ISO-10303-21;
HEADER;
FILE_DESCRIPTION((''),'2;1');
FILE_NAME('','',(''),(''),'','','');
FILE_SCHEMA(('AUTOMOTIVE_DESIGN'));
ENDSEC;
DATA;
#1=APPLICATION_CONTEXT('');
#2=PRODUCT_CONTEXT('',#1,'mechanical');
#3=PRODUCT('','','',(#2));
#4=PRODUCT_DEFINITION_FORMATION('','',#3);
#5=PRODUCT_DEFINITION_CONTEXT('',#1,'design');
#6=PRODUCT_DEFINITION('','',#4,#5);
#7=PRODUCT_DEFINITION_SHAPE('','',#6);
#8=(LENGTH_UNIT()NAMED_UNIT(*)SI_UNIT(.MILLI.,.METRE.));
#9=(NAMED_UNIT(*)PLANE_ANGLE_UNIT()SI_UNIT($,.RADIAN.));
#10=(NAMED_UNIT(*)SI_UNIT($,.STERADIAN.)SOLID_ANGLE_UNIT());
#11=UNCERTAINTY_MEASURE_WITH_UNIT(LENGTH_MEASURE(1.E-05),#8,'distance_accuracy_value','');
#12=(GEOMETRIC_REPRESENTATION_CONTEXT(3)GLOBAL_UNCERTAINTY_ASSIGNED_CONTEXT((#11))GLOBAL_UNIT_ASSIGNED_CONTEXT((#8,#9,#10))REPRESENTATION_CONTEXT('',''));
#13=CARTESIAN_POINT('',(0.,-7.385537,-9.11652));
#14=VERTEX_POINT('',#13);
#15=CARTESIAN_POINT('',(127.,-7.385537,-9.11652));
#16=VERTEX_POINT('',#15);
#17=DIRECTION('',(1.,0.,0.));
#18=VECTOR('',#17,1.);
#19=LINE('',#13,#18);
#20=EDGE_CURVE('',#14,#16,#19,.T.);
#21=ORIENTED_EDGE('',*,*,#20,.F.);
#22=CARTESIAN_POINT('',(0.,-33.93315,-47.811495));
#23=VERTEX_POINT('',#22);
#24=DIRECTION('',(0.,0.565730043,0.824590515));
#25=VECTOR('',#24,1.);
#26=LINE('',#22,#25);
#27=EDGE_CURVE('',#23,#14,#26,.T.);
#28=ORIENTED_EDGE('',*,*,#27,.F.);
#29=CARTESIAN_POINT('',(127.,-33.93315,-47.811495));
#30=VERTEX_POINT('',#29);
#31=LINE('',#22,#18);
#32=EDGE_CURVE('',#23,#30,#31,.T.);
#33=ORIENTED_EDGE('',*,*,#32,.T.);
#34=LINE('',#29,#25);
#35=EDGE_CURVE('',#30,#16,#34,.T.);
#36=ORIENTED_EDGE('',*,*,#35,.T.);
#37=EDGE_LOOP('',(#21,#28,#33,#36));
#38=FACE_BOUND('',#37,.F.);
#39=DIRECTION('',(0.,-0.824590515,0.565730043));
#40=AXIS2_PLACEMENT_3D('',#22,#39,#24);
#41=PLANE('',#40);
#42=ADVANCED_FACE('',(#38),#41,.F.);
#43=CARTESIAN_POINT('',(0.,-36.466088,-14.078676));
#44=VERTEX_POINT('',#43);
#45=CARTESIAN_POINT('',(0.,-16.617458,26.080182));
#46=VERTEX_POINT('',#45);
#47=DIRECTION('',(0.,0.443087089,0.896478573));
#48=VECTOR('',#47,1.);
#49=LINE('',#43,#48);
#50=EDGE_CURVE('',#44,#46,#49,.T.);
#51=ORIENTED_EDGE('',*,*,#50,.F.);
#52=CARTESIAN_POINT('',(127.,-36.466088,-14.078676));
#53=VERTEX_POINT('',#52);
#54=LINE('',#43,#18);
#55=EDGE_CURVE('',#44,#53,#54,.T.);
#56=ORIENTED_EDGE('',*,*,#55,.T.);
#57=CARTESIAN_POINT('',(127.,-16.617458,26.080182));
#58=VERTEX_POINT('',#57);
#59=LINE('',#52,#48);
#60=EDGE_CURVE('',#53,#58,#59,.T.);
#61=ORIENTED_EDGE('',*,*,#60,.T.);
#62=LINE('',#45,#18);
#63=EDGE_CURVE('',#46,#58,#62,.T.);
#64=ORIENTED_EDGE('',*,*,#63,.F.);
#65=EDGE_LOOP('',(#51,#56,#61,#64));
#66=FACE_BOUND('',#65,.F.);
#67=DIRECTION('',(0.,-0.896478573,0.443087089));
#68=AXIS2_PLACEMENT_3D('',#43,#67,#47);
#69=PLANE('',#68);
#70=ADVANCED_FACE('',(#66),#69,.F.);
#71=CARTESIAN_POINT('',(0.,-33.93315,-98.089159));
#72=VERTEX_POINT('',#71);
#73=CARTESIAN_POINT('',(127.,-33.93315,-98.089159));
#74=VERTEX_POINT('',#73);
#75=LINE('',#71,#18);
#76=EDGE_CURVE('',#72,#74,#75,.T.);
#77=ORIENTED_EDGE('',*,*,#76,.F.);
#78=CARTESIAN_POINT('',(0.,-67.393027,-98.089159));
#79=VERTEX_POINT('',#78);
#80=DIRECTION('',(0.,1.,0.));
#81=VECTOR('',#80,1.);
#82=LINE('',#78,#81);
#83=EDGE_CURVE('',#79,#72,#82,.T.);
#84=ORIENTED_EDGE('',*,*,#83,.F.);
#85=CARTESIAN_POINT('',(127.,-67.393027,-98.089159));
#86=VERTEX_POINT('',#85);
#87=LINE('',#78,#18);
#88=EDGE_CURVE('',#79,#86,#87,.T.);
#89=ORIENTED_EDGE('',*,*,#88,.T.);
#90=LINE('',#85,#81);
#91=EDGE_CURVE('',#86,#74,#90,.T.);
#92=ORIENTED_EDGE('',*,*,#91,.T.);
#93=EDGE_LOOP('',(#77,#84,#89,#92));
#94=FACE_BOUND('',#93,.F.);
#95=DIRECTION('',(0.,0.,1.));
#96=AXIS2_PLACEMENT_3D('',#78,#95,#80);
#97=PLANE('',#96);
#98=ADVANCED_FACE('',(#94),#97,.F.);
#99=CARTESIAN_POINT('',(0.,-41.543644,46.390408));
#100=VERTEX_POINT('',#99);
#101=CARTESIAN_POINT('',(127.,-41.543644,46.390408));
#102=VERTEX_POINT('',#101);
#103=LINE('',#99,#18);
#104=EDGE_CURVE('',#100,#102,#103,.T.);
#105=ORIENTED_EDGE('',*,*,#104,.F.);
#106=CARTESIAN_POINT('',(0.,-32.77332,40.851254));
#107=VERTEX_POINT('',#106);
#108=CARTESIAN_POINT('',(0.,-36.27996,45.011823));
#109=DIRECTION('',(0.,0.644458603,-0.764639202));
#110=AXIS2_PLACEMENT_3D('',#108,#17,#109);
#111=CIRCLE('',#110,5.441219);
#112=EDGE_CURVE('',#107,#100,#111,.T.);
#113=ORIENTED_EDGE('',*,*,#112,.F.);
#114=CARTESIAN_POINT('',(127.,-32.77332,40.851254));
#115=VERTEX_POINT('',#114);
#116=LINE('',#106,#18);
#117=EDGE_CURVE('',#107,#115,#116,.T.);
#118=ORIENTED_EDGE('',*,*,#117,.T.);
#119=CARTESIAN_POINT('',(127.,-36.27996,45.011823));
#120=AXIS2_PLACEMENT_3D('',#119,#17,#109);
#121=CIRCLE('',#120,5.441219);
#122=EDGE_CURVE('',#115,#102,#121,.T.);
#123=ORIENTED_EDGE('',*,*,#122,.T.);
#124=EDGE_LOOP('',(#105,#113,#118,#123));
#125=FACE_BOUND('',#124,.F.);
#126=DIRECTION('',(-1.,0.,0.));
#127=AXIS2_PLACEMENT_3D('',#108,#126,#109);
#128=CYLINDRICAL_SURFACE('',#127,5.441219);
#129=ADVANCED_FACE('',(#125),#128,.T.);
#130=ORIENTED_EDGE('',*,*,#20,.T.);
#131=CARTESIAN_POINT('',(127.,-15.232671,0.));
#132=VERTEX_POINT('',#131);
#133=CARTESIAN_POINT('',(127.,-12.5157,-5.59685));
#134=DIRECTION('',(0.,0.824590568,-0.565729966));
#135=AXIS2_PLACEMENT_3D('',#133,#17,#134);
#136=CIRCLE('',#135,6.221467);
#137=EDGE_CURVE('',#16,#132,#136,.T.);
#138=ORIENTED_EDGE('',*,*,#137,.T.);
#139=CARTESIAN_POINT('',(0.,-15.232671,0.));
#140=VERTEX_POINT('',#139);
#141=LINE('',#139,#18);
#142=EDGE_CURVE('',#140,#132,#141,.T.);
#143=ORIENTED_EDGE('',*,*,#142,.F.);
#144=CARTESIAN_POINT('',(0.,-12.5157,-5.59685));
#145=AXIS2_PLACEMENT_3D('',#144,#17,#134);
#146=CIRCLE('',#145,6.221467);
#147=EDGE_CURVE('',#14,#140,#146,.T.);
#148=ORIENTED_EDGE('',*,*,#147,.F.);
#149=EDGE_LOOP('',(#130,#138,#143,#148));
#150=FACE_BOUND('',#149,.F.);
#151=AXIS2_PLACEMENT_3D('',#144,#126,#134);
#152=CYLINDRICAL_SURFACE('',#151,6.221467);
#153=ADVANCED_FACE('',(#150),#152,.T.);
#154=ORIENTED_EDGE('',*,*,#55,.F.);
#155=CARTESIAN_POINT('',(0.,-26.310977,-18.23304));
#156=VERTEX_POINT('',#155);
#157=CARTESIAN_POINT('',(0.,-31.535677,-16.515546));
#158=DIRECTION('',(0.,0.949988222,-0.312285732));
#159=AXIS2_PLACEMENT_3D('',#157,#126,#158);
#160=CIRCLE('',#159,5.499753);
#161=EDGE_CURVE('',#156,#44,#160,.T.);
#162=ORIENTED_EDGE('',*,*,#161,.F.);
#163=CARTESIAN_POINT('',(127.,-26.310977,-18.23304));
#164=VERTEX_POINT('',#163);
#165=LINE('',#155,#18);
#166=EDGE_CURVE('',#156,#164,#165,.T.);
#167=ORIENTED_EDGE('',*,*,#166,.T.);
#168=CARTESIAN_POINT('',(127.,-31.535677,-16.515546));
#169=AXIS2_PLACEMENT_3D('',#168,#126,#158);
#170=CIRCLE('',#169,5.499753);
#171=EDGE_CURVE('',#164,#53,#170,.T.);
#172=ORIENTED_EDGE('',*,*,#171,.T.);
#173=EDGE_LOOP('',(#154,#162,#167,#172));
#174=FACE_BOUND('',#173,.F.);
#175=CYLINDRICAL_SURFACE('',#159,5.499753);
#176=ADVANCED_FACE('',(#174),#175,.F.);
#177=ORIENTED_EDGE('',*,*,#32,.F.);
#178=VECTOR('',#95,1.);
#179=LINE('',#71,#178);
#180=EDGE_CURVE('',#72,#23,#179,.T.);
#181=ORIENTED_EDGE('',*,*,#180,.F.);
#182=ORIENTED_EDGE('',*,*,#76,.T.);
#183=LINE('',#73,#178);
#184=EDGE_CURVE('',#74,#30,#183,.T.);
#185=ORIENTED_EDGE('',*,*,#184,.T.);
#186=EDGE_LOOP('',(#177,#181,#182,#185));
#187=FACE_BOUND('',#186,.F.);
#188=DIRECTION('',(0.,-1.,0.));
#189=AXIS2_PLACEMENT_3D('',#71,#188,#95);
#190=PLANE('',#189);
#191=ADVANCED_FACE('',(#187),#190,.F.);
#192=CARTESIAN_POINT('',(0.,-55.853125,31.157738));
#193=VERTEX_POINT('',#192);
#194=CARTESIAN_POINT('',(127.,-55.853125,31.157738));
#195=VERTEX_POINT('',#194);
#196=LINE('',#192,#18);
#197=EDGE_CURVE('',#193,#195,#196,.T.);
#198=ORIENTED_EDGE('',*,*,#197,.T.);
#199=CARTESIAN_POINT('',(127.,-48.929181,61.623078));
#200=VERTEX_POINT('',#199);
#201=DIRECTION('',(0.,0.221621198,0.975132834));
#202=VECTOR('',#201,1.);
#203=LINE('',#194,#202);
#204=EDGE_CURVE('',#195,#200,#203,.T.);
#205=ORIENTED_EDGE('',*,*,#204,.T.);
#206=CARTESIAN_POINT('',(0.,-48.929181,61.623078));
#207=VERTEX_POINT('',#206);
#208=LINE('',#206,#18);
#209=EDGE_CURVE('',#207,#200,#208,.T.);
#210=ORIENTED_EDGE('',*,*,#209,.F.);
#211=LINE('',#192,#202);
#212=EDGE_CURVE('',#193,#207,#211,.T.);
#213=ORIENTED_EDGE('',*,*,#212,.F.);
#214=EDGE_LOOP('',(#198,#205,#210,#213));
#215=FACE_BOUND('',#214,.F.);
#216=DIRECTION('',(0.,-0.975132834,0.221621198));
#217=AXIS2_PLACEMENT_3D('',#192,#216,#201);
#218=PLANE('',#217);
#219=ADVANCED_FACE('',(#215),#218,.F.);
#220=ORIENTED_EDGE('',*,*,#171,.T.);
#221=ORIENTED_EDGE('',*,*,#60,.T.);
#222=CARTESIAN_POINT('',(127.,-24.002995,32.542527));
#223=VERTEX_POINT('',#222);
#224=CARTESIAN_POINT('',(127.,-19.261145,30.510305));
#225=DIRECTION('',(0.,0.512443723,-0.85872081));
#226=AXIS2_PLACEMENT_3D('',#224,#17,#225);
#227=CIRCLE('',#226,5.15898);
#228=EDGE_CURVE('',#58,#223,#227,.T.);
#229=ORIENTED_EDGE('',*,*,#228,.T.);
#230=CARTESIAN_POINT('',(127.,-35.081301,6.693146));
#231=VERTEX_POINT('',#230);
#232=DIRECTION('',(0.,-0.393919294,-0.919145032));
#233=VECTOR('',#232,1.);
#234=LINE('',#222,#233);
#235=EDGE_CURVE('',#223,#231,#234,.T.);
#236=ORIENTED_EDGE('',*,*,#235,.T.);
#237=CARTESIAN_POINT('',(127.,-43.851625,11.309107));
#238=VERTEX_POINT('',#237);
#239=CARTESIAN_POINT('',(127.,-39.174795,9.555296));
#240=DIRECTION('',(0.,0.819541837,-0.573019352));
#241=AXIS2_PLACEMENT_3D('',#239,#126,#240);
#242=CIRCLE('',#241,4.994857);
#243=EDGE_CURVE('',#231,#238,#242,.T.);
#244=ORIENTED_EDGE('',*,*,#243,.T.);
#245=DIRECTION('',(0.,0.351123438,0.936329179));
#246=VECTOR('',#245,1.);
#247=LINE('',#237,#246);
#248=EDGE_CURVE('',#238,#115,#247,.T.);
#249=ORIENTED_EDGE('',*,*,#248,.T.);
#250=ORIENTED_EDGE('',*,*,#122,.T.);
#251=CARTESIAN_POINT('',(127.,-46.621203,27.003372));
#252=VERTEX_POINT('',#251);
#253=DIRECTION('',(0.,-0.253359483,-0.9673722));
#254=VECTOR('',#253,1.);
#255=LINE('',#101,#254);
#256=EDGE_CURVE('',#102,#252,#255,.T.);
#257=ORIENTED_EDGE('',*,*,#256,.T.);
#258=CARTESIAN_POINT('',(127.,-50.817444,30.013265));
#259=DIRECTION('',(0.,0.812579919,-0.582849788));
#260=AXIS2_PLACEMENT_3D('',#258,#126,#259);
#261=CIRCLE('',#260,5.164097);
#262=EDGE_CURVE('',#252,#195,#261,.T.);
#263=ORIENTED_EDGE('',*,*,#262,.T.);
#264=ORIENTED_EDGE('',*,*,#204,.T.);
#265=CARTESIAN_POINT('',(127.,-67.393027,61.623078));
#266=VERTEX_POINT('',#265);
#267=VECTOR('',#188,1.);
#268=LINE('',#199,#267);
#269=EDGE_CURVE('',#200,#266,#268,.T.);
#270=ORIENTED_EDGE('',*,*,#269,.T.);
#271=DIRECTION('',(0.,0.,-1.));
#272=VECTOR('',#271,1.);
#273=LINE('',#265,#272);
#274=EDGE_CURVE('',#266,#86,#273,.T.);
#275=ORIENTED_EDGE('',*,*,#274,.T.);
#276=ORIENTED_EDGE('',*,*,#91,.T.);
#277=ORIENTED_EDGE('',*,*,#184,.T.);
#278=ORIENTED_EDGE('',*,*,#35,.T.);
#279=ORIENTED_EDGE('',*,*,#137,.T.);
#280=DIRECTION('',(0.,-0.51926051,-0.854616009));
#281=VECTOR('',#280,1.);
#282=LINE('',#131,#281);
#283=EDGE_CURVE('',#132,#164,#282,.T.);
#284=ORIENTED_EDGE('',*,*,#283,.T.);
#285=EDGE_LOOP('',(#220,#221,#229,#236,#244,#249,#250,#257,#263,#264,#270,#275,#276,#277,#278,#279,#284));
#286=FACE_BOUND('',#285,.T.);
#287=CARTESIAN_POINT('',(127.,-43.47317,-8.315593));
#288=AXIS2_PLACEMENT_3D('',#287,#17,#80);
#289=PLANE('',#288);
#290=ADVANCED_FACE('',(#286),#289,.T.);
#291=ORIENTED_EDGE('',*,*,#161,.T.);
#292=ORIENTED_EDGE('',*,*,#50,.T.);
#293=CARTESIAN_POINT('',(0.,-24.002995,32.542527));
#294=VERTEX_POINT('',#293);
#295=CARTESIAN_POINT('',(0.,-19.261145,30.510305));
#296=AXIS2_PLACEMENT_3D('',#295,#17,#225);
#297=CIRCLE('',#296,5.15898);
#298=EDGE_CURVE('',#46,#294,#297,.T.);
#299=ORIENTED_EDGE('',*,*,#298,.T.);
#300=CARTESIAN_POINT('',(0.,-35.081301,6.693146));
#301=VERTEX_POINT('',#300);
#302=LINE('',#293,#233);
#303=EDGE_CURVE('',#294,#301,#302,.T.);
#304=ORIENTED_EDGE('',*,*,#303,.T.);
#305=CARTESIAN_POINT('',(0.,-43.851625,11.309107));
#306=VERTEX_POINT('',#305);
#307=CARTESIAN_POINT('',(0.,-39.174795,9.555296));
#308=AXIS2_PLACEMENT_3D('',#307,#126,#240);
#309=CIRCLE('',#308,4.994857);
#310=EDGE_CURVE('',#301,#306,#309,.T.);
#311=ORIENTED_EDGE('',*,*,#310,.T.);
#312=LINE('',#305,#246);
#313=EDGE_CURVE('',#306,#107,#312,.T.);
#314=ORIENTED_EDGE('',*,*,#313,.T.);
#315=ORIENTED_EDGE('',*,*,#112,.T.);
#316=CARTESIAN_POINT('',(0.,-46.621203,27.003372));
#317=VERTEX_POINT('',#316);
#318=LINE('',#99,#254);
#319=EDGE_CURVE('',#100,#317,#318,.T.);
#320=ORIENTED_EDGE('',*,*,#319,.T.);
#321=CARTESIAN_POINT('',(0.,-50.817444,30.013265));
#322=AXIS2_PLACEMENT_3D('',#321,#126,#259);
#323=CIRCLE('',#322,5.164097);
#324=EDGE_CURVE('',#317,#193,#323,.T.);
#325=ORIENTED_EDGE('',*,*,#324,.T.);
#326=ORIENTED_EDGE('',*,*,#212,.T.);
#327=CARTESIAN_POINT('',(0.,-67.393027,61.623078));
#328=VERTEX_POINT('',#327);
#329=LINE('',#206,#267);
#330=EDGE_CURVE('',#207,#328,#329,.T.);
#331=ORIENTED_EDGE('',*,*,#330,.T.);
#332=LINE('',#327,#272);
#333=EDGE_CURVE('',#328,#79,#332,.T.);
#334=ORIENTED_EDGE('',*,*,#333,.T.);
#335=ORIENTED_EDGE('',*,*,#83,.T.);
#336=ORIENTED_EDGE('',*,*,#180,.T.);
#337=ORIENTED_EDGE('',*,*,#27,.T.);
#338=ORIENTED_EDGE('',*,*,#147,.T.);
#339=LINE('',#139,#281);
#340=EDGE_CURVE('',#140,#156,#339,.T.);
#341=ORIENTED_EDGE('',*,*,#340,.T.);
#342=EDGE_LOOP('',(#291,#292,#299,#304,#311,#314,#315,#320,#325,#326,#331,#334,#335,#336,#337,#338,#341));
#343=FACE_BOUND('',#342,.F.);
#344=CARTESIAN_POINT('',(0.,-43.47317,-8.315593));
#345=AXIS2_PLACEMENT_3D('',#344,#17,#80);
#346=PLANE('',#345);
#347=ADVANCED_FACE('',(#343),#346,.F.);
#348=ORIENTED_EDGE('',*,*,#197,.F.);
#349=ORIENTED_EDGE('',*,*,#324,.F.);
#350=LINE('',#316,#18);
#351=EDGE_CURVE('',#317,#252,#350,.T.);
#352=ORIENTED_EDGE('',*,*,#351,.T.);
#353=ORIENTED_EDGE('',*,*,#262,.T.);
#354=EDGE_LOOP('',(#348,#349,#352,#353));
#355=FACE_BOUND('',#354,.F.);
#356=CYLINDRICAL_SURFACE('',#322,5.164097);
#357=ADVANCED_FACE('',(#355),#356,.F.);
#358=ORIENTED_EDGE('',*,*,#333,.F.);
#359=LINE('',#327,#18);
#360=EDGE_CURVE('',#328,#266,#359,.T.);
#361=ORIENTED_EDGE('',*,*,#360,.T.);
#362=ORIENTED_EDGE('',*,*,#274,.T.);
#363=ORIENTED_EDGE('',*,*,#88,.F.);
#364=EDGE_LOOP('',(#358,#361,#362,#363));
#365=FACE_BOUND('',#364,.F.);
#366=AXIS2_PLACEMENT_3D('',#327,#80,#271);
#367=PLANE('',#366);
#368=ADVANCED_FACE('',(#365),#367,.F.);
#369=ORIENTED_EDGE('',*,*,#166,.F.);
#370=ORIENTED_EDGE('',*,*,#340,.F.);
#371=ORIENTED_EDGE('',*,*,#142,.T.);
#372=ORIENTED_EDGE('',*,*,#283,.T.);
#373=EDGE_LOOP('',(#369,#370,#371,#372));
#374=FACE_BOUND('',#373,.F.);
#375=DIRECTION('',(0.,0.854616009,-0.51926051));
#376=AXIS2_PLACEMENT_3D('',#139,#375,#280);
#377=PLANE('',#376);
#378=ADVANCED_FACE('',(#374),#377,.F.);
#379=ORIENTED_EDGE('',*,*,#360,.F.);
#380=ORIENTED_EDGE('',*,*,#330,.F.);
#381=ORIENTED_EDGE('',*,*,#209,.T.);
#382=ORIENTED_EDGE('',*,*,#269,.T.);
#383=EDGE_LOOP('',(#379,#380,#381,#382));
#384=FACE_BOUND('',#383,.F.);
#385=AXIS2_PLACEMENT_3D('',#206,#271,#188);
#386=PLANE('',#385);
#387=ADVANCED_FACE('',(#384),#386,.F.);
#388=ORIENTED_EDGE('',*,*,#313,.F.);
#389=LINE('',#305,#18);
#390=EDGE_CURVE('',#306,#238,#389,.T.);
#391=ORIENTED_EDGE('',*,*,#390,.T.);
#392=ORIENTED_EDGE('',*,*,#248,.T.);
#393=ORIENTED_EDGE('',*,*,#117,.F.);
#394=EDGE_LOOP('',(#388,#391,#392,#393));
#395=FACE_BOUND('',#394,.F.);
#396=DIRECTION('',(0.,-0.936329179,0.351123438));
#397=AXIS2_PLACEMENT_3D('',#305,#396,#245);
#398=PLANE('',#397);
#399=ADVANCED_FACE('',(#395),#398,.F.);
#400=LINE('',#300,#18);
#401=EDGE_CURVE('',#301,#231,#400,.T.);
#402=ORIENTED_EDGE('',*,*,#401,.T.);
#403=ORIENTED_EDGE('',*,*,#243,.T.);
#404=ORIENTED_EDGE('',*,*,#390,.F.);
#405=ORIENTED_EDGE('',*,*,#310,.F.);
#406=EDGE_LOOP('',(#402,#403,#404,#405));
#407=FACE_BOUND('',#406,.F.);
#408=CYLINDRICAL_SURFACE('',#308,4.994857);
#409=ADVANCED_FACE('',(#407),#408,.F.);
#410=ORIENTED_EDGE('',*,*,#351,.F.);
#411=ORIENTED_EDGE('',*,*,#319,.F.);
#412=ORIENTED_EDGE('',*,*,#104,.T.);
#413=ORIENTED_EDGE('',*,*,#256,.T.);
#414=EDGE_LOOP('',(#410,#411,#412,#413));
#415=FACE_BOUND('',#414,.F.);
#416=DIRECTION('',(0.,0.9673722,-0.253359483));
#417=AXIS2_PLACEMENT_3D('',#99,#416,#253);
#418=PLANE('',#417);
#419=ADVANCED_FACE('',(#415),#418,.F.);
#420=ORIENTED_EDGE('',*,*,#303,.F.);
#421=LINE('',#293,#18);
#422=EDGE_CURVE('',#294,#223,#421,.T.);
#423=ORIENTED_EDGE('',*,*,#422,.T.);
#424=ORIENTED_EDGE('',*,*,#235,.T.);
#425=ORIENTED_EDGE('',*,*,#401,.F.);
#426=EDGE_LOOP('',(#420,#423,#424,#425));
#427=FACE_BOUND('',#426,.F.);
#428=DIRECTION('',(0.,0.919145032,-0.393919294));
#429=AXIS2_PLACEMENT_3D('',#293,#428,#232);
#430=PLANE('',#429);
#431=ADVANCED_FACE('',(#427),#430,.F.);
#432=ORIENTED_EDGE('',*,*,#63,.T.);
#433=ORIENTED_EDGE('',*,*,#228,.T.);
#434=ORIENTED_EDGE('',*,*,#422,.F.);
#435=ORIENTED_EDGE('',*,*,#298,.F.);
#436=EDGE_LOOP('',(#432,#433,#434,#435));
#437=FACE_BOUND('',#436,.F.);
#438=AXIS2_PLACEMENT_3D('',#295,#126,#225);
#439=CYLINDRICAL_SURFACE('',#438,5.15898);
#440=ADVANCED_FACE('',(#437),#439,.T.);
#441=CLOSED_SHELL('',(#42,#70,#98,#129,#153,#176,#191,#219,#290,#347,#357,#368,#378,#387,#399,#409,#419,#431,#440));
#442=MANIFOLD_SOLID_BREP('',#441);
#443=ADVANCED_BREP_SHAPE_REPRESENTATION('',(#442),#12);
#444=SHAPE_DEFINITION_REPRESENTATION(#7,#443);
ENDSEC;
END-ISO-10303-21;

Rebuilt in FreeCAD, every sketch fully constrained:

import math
import FreeCAD as App
import Part
import Sketcher

V = App.Vector
Q = App.Units.Quantity

doc = App.newDocument("Part")
body = doc.addObject("PartDesign::Body", "Body")

# Sketch on YZ plane
sketch1 = doc.addObject("Sketcher::SketchObject", "Sketch")
body.addObject(sketch1)
sketch1.AttachmentSupport = (doc.YZ_Plane, [""])
sketch1.MapMode = "FlatFace"
sketch1.addGeometry([
    Part.LineSegment(V(-48.929181, 61.623078, 0), V(-67.393027, 61.623078, 0)),  # 0
    Part.LineSegment(V(-67.393027, 61.623078, 0), V(-67.393027, -98.089159, 0)),  # 1
    Part.LineSegment(V(-67.393027, -98.089159, 0), V(-33.93315, -98.089159, 0)),  # 2
    Part.LineSegment(V(-33.93315, -98.089159, 0), V(-33.93315, -47.811495, 0)),  # 3
    Part.LineSegment(V(-33.93315, -47.811495, 0), V(-7.385537, -9.11652, 0)),  # 4
    Part.ArcOfCircle(Part.Circle(V(-12.5157, -5.59685, 0), V(0, 0, 1), 6.221467), math.radians(-34.452997), math.radians(115.89409)),  # 5
    Part.LineSegment(V(-15.232671, 0, 0), V(-26.310977, -18.23304, 0)),  # 6
    Part.ArcOfCircle(Part.Circle(V(-31.535677, -16.515546, 0), V(0, 0, 1), 5.499753), math.radians(153.698982), math.radians(341.802967)),  # 7
    Part.LineSegment(V(-36.466088, -14.078676, 0), V(-16.617458, 26.080182, 0)),  # 8
    Part.ArcOfCircle(Part.Circle(V(-19.261145, 30.510305, 0), V(0, 0, 1), 5.15898), math.radians(-59.173258), math.radians(156.801406)),  # 9
    Part.LineSegment(V(-24.002995, 32.542527, 0), V(-35.081301, 6.693146, 0)),  # 10
    Part.ArcOfCircle(Part.Circle(V(-39.174795, 9.555296, 0), V(0, 0, 1), 4.994857), math.radians(159.443952), math.radians(325.038956)),  # 11
    Part.LineSegment(V(-43.851625, 11.309107, 0), V(-32.77332, 40.851254, 0)),  # 12
    Part.ArcOfCircle(Part.Circle(V(-36.27996, 45.011823, 0), V(0, 0, 1), 5.441219), math.radians(-49.874905), math.radians(165.323597)),  # 13
    Part.LineSegment(V(-41.543644, 46.390408, 0), V(-46.621203, 27.003372, 0)),  # 14
    Part.ArcOfCircle(Part.Circle(V(-50.817444, 30.013265, 0), V(0, 0, 1), 5.164097), math.radians(167.19573), math.radians(324.348768)),  # 15
    Part.LineSegment(V(-55.853125, 31.157738, 0), V(-48.929181, 61.623078, 0)),  # 16
], False)
sketch1.addConstraint([
    Sketcher.Constraint("Coincident", 0, 2, 1, 1),
    Sketcher.Constraint("Coincident", 1, 2, 2, 1),
    Sketcher.Constraint("Coincident", 2, 2, 3, 1),
    Sketcher.Constraint("Coincident", 3, 2, 4, 1),
    Sketcher.Constraint("Coincident", 4, 2, 5, 1),
    Sketcher.Constraint("Coincident", 5, 2, 6, 1),
    Sketcher.Constraint("Coincident", 6, 2, 7, 2),
    Sketcher.Constraint("Coincident", 7, 1, 8, 1),
    Sketcher.Constraint("Coincident", 8, 2, 9, 1),
    Sketcher.Constraint("Coincident", 9, 2, 10, 1),
    Sketcher.Constraint("Coincident", 10, 2, 11, 2),
    Sketcher.Constraint("Coincident", 11, 1, 12, 1),
    Sketcher.Constraint("Coincident", 12, 2, 13, 1),
    Sketcher.Constraint("Coincident", 13, 2, 14, 1),
    Sketcher.Constraint("Coincident", 14, 2, 15, 2),
    Sketcher.Constraint("Coincident", 15, 1, 16, 1),
    Sketcher.Constraint("Coincident", 16, 2, 0, 1),
    Sketcher.Constraint("Horizontal", 0),
    Sketcher.Constraint("Vertical", 1),
    Sketcher.Constraint("Horizontal", 2),
    Sketcher.Constraint("Vertical", 3),
    Sketcher.Constraint("PointOnObject", 5, 2, -1),
    Sketcher.Constraint("DistanceX", 9, 2, -1, 1, Q("0.9449998 in")),
    Sketcher.Constraint("Radius", 9, 5.15898),
    Sketcher.Constraint("Radius", 13, 5.441219),
    Sketcher.Constraint("Radius", 5, 6.221467),
    Sketcher.Constraint("Radius", 7, 5.499753),
    Sketcher.Constraint("Radius", 11, 4.994857),
    Sketcher.Constraint("Radius", 15, 5.164097),
    Sketcher.Constraint("DistanceX", 15, 1, 11, 1, Q("0.4725 in")),
    Sketcher.Constraint("DistanceX", 5, 3, -1, 1, 12.5157),
    Sketcher.Constraint("DistanceX", 10, 2, -1, 1, 35.081301),
    Sketcher.Constraint("DistanceX", 15, 3, 9, 3, 31.5563),
    Sketcher.Constraint("DistanceX", 7, 3, 6, 2, 5.2247),
    Sketcher.Constraint("DistanceX", 11, 3, 9, 2, 15.1718),
    Sketcher.Constraint("DistanceX", 15, 3, 13, 2, 9.2738),
    Sketcher.Constraint("Distance", 4, 46.926292),
    Sketcher.Constraint("Distance", 10, 28.123289),
    Sketcher.Constraint("DistanceX", 0, 2, 0, 1, 18.463846),
    Sketcher.Constraint("DistanceX", 2, 1, 2, 2, 33.459877),
    Sketcher.Constraint("DistanceY", 1, 2, 1, 1, 159.712237),
    Sketcher.Constraint("DistanceY", 3, 1, 3, 2, 50.277664),
    Sketcher.Constraint("DistanceY", 5, 3, -1, 1, 5.59685),
    Sketcher.Constraint("DistanceX", 13, 3, -1, 1, 36.27996),
    Sketcher.Constraint("DistanceY", 1, 2, -1, 1, 98.089159),
    Sketcher.Constraint("DistanceX", 2, 2, -1, 1, 33.93315),
    Sketcher.Constraint("DistanceY", 6, 2, -1, 1, 18.23304),
    Sketcher.Constraint("DistanceX", 7, 1, -1, 1, 36.466088),
    Sketcher.Constraint("DistanceX", 12, 2, -1, 1, 32.77332),
    Sketcher.Constraint("DistanceY", -1, 1, 14, 2, 27.003372),
    Sketcher.Constraint("DistanceY", 7, 3, 9, 3, 47.025851),
    Sketcher.Constraint("DistanceY", 7, 3, 11, 3, 26.070841),
    Sketcher.Constraint("DistanceY", 9, 3, 13, 3, 14.501518),
    Sketcher.Constraint("DistanceY", 15, 3, 13, 3, 14.998558),
    Sketcher.Constraint("DistanceX", 0, 2, 7, 3, 35.85735),
    Sketcher.Constraint("DistanceY", 5, 2, 8, 2, 26.080182),
    Sketcher.Constraint("DistanceX", 11, 1, 11, 3, 4.67683),
])
pad1 = doc.addObject("PartDesign::Pad", "Pad")
body.addObject(pad1)
pad1.Profile = sketch1
pad1.Length = Q("5 in")

doc.recompute()
